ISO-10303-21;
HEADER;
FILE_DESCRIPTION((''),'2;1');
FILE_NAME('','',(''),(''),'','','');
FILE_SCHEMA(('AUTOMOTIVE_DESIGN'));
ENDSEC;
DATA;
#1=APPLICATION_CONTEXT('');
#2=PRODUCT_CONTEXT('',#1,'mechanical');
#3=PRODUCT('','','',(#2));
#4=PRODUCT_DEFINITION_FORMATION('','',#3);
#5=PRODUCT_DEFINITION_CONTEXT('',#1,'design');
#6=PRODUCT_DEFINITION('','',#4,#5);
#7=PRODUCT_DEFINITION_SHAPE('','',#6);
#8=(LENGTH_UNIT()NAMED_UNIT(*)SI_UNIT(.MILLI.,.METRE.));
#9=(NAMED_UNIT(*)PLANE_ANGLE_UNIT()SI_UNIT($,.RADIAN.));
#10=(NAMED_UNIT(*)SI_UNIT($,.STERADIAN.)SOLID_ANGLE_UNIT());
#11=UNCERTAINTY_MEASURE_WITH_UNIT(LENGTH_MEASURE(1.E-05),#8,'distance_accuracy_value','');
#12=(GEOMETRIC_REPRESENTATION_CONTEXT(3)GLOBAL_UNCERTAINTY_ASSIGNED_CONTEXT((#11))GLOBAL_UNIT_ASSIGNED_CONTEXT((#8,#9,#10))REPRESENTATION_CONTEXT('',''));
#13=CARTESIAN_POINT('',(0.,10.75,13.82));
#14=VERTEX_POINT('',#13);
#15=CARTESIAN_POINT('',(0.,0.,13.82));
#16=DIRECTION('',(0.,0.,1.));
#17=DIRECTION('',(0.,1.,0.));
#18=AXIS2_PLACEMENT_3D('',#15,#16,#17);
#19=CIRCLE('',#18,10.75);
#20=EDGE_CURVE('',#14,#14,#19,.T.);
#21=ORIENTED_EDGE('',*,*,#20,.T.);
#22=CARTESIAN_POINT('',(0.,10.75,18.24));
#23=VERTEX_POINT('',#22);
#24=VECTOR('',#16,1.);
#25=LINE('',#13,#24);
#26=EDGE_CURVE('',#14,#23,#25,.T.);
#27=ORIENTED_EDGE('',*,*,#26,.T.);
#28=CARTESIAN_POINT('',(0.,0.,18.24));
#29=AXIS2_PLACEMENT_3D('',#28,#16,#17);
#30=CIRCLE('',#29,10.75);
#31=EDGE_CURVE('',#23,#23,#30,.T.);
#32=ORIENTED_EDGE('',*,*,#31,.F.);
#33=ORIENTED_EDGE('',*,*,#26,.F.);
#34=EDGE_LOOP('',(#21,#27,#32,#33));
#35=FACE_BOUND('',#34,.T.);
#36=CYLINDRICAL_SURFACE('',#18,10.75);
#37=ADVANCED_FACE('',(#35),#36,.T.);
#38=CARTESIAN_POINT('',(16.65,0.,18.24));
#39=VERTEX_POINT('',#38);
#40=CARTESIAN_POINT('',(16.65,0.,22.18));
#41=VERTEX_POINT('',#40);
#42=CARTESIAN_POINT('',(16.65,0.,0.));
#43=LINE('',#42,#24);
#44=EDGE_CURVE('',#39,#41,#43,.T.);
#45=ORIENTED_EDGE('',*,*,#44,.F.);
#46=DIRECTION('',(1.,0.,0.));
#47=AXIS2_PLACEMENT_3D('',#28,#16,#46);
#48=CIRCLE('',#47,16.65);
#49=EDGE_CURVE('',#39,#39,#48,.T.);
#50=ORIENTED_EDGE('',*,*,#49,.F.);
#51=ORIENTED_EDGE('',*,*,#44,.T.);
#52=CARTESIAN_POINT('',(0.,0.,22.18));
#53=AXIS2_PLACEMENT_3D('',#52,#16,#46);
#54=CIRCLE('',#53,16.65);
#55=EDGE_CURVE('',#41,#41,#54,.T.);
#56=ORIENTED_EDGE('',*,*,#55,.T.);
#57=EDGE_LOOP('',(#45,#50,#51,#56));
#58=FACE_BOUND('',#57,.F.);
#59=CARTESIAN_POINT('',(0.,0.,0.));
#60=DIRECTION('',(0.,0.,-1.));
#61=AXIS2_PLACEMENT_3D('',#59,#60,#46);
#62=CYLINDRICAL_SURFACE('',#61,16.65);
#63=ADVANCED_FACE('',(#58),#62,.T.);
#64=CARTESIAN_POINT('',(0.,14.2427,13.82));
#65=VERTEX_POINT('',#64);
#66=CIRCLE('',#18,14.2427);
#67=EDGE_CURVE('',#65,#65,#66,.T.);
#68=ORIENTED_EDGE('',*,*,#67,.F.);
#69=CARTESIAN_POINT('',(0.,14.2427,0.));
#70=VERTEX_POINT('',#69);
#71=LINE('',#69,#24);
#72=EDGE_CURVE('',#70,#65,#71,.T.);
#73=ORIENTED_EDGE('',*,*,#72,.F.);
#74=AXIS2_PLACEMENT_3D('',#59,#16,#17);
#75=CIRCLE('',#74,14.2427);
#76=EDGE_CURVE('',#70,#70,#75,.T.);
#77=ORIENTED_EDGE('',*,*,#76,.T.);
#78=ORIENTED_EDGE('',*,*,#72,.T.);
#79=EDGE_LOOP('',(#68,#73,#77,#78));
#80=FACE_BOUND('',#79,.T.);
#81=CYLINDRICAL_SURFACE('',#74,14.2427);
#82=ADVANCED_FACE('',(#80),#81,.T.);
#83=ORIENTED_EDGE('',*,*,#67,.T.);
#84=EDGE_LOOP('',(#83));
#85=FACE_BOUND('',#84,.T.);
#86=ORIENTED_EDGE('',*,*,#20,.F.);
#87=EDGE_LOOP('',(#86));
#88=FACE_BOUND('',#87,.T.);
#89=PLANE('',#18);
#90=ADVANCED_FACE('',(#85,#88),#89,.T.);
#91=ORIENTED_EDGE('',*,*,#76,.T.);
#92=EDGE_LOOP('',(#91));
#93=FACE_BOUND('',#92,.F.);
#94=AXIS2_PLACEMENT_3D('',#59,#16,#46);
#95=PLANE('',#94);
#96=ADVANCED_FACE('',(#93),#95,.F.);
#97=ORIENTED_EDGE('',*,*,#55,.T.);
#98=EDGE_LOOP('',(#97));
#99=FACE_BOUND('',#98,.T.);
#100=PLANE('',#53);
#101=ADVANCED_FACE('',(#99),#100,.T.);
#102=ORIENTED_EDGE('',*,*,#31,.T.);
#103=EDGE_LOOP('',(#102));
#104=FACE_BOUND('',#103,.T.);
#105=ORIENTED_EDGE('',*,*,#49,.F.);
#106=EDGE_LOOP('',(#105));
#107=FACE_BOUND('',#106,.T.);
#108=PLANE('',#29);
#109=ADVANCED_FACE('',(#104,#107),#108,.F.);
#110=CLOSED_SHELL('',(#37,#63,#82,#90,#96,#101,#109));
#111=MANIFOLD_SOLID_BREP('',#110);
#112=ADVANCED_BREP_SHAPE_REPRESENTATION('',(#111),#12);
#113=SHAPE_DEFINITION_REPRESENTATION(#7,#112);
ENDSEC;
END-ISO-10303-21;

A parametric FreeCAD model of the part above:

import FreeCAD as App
import Part
import Sketcher

V = App.Vector


def add_polygon(sketch, points):
    """Adds a closed chain of lines whose ends are joined by coincident constraints."""
    first, n = sketch.GeometryCount, len(points)
    for a, b in zip(points, points[1:] + points[:1]):
        sketch.addGeometry(Part.LineSegment(App.Vector(*a, 0), App.Vector(*b, 0)), False)
    for i in range(n):
        sketch.addConstraint(Sketcher.Constraint("Coincident", first + i, 2, first + (i + 1) % n, 1))

doc = App.newDocument("Part")
body = doc.addObject("PartDesign::Body", "Body")

sketch1 = doc.addObject("Sketcher::SketchObject", "Sketch")
body.addObject(sketch1)
sketch1.AttachmentSupport = (doc.XY_Plane, [""])
sketch1.MapMode = "FlatFace"
sketch1.addGeometry(Part.Circle(V(0, 0, 0), V(0, 0, 1), 17), False)
sketch1.addConstraint(Sketcher.Constraint("Coincident", 0, 3, -1, 1))
sketch1.addConstraint(Sketcher.Constraint("Diameter", 0, 33.3))
pad1 = doc.addObject("PartDesign::Pad", "Pad")
body.addObject(pad1)
pad1.Profile = sketch1
pad1.Length = 22.18

sketch2 = doc.addObject("Sketcher::SketchObject", "Sketch001")
body.addObject(sketch2)
sketch2.AttachmentSupport = (doc.YZ_Plane, [""])
sketch2.MapMode = "FlatFace"
add_polygon(sketch2, [(14.2, 13.8), (14.2, 0), (16.6, 0), (16.6, 18.2), (10.8, 18.2), (10.8, 13.8)])
sketch2.addConstraint(Sketcher.Constraint("Vertical", 0))
sketch2.addConstraint(Sketcher.Constraint("Horizontal", 1))
sketch2.addConstraint(Sketcher.Constraint("Vertical", 2))
sketch2.addConstraint(Sketcher.Constraint("Horizontal", 3))
sketch2.addConstraint(Sketcher.Constraint("Vertical", 4))
sketch2.addConstraint(Sketcher.Constraint("Horizontal", 5))
sketch2.addConstraint(Sketcher.Constraint("PointOnObject", 0, 2, -1))
sketch2.addConstraint(Sketcher.Constraint("DistanceX", 3, 2, 3, 1, 5.9))
sketch2.addConstraint(Sketcher.Constraint("DistanceY", 0, 2, 0, 1, 13.82))
sketch2.addConstraint(Sketcher.Constraint("DistanceY", 4, 2, 4, 1, 4.42))
sketch2.addConstraint(Sketcher.Constraint("DistanceX", -1, 1, 1, 2, 16.65))
sketch2.addConstraint(Sketcher.Constraint("DistanceX", 1, 1, 1, 2, 2.4073))
groove = doc.addObject("PartDesign::Groove", "Groove")
body.addObject(groove)
groove.Profile = sketch2
groove.ReferenceAxis = (sketch2, ["V_Axis"])
groove.Angle = 360

doc.recompute()
